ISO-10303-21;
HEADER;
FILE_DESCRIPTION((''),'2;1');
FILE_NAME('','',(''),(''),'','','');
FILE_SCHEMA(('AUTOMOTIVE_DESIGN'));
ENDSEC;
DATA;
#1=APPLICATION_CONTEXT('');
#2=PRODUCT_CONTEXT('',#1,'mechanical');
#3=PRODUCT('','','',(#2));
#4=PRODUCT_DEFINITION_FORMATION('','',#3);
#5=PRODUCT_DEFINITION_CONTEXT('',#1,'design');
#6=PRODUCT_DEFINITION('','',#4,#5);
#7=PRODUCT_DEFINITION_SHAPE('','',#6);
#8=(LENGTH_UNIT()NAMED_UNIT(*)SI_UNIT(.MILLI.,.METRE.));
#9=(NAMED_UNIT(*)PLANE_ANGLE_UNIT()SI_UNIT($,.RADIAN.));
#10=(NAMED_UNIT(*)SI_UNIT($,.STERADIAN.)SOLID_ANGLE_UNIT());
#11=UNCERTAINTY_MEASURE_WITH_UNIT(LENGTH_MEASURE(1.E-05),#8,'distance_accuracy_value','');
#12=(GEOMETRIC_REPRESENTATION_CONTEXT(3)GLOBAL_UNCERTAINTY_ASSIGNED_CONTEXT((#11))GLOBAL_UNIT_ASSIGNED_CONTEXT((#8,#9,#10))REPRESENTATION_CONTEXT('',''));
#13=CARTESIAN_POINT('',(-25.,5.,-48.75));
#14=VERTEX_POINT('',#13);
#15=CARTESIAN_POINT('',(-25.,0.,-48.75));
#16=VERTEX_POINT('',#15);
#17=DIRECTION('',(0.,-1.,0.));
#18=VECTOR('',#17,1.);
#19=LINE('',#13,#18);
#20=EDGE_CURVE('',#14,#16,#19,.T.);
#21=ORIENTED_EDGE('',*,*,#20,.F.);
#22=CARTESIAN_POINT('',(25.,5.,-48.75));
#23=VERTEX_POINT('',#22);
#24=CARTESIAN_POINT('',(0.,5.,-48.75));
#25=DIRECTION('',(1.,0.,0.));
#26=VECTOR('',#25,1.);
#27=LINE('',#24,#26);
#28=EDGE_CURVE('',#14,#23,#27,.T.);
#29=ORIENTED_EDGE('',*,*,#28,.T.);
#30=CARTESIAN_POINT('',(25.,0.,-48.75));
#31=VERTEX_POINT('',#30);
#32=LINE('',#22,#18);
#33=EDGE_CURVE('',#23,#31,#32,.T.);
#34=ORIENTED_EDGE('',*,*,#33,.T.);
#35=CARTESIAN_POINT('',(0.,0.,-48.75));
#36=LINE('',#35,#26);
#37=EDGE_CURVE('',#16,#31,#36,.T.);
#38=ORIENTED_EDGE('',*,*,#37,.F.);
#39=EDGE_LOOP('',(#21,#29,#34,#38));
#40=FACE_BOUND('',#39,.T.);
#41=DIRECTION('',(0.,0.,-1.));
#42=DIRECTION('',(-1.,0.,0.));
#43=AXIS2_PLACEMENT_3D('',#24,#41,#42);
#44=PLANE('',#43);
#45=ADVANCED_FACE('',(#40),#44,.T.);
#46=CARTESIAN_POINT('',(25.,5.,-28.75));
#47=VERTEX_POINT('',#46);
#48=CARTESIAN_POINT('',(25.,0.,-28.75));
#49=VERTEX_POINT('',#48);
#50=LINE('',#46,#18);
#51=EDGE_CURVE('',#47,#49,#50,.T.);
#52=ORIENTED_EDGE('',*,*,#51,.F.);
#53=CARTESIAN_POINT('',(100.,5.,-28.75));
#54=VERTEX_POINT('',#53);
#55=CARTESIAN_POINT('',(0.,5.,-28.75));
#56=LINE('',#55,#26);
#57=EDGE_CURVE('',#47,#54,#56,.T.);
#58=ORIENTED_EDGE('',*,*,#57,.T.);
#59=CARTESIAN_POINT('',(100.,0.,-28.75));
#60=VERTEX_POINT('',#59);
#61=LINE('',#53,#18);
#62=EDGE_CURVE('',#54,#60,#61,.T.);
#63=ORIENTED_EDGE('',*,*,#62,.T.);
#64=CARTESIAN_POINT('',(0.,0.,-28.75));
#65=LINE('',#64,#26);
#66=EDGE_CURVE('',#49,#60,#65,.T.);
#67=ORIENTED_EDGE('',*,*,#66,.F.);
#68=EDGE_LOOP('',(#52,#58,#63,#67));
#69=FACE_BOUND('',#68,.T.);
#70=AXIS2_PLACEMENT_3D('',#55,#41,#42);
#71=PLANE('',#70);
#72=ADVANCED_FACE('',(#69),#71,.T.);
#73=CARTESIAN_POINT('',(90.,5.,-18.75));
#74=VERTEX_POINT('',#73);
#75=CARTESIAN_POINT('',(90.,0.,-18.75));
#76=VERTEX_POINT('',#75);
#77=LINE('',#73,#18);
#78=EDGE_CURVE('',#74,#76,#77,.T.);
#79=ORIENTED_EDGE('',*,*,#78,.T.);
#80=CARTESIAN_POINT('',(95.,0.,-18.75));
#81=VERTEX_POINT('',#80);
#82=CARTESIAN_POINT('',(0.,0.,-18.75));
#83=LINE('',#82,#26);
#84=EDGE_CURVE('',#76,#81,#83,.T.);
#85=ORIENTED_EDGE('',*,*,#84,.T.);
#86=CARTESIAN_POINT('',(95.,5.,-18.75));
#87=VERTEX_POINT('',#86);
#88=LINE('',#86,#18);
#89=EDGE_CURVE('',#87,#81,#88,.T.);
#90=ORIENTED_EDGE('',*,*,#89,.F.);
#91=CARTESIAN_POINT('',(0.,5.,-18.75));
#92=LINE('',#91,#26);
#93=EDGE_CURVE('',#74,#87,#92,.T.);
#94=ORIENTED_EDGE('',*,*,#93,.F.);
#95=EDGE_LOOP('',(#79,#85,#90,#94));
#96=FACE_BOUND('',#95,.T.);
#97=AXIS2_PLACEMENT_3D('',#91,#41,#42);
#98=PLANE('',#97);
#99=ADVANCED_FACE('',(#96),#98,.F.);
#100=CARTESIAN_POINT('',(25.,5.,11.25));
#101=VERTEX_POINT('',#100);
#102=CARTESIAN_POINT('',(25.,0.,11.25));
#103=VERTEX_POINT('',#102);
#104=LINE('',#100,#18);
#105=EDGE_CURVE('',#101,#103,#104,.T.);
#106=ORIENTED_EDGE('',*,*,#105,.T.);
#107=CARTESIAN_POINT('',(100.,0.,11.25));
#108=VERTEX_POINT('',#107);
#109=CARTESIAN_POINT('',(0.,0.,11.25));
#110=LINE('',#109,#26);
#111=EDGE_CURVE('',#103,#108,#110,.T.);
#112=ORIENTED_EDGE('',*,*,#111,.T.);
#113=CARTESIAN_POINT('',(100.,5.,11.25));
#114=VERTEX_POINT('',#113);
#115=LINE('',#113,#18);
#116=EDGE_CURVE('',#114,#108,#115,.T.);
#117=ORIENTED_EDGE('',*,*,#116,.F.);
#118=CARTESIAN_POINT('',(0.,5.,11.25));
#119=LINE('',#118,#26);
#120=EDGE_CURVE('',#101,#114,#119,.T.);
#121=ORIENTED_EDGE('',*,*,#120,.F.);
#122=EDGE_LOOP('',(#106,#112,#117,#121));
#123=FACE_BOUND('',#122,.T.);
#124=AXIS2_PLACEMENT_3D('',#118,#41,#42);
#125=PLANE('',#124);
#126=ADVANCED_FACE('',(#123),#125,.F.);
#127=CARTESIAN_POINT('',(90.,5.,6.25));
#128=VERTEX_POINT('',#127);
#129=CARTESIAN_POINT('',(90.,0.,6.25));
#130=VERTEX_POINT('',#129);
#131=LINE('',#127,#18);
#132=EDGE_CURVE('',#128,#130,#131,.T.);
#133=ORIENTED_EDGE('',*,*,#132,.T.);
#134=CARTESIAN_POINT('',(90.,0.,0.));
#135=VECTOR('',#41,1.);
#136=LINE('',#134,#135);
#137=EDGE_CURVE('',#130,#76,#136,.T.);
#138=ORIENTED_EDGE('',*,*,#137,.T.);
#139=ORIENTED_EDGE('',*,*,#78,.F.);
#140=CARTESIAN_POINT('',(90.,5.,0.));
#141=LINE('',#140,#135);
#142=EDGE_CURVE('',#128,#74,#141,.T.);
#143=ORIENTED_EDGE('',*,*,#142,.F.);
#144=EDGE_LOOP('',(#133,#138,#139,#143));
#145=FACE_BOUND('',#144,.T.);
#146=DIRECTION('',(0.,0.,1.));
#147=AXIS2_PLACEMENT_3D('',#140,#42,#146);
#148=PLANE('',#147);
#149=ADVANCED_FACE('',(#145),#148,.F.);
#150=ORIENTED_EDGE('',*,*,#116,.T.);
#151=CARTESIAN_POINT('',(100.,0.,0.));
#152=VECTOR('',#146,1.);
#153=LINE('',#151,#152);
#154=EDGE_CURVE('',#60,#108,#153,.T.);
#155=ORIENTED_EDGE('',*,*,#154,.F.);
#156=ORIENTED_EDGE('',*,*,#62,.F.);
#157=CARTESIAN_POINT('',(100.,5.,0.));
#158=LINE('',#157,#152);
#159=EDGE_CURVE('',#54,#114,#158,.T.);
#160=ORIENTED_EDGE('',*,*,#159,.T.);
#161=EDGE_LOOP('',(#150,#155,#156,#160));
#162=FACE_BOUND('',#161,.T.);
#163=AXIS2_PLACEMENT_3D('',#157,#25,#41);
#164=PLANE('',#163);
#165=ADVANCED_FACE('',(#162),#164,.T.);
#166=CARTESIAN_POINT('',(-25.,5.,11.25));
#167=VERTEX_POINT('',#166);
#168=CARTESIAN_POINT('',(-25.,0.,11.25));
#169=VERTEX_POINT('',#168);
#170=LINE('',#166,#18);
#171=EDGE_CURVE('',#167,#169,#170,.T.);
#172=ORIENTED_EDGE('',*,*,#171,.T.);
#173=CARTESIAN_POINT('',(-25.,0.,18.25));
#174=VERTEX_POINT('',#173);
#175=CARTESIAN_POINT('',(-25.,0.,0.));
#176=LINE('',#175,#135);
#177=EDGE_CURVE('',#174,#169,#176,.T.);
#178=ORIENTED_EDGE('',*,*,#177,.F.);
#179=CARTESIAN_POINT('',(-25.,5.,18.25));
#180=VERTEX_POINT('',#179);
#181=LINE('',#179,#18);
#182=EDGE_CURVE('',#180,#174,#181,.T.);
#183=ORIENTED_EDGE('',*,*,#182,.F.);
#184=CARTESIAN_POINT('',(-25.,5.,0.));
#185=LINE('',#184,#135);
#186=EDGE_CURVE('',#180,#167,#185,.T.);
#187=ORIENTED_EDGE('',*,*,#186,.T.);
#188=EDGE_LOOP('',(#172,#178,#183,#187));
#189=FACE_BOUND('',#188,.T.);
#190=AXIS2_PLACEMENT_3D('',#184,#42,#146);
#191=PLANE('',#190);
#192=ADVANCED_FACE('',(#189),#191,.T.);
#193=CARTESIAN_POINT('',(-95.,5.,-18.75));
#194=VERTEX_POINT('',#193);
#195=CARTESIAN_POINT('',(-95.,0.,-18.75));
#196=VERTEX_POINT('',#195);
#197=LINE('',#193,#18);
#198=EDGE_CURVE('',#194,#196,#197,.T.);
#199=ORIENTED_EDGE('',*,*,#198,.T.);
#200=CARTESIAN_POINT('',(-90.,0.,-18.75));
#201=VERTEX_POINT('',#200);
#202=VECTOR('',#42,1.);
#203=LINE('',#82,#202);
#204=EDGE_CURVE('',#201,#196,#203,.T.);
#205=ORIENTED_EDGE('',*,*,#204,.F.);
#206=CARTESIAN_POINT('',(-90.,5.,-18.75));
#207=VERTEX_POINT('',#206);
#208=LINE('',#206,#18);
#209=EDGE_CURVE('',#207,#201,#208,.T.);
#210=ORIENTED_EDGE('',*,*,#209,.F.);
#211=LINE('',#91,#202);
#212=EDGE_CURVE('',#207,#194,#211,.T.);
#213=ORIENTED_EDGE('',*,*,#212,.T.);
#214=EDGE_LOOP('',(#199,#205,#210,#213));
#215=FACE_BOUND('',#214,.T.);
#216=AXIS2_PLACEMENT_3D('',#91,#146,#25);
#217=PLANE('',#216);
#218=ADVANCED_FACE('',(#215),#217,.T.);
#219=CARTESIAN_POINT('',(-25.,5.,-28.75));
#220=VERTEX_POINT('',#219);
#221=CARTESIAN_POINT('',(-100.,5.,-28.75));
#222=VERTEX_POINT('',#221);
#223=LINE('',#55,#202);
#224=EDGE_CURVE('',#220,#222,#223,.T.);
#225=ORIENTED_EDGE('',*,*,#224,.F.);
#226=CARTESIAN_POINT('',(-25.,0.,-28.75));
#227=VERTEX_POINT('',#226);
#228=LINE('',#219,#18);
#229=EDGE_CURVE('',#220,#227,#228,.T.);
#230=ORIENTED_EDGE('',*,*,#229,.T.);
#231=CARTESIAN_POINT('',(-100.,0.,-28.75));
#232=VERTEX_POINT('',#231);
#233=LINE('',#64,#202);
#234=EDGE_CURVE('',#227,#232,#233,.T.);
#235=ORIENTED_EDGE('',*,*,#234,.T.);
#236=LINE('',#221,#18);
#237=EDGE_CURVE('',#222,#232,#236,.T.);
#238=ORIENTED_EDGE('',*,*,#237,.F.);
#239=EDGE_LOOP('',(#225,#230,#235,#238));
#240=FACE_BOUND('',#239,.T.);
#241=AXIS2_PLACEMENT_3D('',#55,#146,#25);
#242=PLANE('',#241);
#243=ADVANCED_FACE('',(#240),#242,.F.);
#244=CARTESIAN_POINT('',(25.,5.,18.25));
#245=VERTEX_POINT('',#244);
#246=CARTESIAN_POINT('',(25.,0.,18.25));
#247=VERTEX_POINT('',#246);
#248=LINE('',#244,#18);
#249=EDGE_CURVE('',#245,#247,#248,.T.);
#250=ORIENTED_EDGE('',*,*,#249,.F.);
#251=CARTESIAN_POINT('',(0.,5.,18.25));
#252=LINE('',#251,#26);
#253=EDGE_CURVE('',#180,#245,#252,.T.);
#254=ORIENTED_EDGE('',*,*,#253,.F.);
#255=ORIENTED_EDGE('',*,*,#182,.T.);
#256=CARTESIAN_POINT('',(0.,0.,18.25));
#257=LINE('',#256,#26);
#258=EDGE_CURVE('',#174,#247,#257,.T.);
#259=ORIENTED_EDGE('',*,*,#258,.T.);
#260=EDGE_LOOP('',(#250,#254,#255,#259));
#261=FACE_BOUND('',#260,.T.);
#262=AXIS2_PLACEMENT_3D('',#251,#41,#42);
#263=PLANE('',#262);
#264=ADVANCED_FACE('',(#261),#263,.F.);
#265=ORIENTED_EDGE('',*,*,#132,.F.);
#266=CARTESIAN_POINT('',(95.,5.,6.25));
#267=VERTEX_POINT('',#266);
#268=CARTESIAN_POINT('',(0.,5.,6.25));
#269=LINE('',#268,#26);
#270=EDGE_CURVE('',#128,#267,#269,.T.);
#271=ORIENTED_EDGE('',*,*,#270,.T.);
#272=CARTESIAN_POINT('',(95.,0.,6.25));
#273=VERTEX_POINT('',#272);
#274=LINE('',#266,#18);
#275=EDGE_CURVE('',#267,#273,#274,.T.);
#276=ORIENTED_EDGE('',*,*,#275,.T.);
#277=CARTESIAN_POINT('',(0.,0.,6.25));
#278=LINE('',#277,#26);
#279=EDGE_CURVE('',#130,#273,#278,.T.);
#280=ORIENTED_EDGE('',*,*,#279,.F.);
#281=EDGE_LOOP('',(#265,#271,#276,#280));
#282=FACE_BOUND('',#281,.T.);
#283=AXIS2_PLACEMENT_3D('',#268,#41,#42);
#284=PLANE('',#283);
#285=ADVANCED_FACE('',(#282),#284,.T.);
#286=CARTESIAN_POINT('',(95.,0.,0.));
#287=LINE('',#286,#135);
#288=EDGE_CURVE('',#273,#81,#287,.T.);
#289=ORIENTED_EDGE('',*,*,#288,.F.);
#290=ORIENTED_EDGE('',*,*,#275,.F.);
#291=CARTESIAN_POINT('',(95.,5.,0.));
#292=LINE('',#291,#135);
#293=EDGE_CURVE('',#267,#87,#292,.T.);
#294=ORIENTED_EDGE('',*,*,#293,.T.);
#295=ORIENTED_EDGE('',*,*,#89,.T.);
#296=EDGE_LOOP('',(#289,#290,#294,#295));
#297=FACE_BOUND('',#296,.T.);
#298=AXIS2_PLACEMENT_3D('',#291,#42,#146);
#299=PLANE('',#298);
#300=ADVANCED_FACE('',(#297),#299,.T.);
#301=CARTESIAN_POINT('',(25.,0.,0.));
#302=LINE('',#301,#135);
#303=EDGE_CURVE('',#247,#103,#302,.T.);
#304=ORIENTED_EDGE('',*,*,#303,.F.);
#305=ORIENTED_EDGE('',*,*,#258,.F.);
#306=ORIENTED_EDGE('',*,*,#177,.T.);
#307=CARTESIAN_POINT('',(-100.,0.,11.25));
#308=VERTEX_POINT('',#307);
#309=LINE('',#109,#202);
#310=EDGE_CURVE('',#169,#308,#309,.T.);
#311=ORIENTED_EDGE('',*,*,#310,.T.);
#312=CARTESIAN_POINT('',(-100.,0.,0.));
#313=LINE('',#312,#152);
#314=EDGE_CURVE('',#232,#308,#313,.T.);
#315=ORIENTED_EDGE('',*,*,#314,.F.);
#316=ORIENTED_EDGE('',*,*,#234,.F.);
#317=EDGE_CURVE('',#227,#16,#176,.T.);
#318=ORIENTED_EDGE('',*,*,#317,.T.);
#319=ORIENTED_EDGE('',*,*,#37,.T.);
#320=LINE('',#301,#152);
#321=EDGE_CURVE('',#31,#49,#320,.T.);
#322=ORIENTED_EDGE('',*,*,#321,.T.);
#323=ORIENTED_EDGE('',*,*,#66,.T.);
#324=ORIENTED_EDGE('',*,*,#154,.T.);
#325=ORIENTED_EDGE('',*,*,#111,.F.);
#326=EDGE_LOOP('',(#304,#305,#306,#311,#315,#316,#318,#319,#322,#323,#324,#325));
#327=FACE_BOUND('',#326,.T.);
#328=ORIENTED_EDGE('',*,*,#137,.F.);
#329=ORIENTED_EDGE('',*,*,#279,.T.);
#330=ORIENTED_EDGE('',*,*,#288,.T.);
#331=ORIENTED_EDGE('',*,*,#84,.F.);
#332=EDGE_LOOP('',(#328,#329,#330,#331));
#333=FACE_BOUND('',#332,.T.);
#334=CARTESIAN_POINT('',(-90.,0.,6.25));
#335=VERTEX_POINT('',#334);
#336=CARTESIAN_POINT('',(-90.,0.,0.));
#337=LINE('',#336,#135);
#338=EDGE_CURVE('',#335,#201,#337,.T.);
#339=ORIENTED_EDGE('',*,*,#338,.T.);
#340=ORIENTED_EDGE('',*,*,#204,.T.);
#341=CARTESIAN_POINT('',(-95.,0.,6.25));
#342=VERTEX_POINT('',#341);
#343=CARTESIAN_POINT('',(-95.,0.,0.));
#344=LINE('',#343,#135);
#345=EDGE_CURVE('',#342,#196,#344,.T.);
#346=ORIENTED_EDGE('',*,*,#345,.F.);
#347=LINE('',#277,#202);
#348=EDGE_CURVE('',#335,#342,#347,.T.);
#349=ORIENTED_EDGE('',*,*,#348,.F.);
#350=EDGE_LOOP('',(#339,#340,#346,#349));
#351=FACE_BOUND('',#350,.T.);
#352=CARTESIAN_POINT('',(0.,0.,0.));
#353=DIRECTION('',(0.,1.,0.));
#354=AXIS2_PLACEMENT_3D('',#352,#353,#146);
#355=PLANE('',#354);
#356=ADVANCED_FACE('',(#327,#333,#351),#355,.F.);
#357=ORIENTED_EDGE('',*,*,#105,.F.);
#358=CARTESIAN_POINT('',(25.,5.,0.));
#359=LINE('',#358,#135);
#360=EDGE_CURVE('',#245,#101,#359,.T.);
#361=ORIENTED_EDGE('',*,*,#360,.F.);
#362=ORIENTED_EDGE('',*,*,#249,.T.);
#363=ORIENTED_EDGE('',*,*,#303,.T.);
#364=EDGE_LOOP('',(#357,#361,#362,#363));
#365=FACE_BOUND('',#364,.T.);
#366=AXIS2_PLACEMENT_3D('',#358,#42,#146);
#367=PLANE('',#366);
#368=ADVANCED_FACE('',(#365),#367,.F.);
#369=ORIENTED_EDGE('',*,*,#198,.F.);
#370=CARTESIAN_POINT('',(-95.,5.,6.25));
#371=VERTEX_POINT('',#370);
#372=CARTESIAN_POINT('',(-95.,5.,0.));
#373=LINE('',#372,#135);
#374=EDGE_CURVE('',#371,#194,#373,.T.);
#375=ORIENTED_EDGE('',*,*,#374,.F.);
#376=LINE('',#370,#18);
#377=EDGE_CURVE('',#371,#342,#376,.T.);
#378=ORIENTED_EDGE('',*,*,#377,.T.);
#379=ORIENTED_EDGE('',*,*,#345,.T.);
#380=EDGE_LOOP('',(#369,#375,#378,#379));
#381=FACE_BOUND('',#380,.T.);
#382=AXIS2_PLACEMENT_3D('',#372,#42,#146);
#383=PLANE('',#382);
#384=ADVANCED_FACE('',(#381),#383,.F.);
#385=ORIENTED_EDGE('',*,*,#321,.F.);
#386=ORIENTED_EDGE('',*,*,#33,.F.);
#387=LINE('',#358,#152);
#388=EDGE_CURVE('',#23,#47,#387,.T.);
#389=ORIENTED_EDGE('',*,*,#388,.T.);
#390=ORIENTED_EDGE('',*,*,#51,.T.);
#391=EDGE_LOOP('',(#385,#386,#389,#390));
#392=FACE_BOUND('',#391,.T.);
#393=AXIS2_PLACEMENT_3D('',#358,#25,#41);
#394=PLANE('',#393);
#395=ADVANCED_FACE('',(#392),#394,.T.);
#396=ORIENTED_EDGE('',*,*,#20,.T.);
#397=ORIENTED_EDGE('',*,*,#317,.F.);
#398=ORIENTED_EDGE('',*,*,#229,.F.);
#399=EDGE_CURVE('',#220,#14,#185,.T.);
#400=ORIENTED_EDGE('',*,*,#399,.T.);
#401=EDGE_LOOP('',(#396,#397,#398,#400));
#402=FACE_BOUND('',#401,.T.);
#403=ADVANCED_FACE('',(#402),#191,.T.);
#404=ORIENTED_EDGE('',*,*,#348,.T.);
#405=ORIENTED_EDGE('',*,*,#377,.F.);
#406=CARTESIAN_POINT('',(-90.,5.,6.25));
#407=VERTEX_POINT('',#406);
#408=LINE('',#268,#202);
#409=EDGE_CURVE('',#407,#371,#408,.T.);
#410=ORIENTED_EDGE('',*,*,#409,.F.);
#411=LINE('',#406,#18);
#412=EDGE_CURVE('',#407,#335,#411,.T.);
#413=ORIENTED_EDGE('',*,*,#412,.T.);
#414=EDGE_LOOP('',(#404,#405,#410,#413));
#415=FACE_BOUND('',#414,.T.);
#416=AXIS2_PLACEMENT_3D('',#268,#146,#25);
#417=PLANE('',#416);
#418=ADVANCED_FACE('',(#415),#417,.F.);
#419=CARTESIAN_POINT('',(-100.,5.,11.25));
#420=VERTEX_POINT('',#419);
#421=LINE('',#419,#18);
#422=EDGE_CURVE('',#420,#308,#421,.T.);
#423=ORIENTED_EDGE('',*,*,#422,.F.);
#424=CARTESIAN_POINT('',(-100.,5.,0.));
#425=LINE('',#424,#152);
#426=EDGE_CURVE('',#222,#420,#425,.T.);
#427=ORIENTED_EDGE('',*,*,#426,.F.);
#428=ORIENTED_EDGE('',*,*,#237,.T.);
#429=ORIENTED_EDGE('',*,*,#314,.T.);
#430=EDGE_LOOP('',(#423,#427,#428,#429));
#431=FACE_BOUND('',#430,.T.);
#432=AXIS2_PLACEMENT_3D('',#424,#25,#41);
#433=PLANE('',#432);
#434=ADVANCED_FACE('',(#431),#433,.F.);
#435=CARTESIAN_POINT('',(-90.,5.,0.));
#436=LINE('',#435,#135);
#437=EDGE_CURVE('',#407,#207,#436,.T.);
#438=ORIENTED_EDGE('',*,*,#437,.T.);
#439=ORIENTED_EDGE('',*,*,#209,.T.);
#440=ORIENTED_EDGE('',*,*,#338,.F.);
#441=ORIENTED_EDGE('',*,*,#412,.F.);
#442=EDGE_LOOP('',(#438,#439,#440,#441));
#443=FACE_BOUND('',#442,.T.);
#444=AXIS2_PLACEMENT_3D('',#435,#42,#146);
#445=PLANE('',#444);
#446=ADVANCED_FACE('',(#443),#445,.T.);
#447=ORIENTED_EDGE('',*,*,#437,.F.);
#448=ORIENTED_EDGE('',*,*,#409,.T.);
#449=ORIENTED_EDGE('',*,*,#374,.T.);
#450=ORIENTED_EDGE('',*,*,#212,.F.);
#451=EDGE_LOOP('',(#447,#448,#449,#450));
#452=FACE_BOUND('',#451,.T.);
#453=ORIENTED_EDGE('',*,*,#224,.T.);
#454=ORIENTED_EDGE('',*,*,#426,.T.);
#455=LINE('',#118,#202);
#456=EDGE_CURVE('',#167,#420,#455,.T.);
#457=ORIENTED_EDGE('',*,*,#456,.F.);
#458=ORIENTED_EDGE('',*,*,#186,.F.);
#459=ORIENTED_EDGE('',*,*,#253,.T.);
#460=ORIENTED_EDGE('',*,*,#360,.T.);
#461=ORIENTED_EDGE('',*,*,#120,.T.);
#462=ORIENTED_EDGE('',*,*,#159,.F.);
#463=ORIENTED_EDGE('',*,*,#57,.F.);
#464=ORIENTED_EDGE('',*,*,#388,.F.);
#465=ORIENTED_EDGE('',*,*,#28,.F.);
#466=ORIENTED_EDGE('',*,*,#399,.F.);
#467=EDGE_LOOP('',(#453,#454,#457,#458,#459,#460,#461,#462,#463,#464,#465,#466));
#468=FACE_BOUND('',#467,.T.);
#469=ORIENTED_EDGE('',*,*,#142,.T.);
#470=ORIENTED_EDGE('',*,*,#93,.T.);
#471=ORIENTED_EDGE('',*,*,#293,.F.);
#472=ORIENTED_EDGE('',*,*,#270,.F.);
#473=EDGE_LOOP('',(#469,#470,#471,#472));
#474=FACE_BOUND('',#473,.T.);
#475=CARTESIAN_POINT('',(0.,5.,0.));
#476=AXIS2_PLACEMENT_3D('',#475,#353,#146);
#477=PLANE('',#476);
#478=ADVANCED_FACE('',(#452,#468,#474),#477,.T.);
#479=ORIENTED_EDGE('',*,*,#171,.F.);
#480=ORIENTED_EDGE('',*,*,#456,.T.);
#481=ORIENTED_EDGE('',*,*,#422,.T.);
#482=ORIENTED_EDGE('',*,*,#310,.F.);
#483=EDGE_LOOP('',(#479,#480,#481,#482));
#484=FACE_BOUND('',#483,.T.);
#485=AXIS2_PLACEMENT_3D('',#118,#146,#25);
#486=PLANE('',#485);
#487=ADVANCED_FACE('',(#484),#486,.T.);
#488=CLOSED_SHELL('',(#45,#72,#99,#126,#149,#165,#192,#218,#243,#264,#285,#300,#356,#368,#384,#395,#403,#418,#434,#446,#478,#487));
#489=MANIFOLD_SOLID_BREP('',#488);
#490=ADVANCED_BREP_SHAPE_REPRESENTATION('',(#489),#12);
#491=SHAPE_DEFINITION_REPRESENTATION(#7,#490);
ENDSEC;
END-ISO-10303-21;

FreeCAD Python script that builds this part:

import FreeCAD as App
import Part
import Sketcher

V = App.Vector


def add_polygon(sketch, points):
    """Adds a closed chain of lines whose ends are joined by coincident constraints."""
    first, n = sketch.GeometryCount, len(points)
    for a, b in zip(points, points[1:] + points[:1]):
        sketch.addGeometry(Part.LineSegment(App.Vector(*a, 0), App.Vector(*b, 0)), False)
    for i in range(n):
        sketch.addConstraint(Sketcher.Constraint("Coincident", first + i, 2, first + (i + 1) % n, 1))

doc = App.newDocument("Part")
body = doc.addObject("PartDesign::Body", "Body")

# Sketch on XZ plane
sketch1 = body.newObject("Sketcher::SketchObject", "Sketch")
sketch1.AttachmentSupport = (doc.getObject("XZ_Plane"), [""])
sketch1.MapMode = "FlatFace"
add_polygon(sketch1, [(-25, -29), (-100, -29), (-100, 11), (-25, 11), (-25, 18), (25, 18), (25, 11), (100, 11), (100, -29), (25, -29), (25, -49), (-25, -49)])  # lines 0-11
add_polygon(sketch1, [(-90, 6), (-95, 6), (-95, -19), (-90, -19)])  # lines 12-15
add_polygon(sketch1, [(95, 6), (90, 6), (90, -19), (95, -19)])  # lines 16-19
sketch1.addConstraint([
    Sketcher.Constraint("Horizontal", 0),
    Sketcher.Constraint("Vertical", 1),
    Sketcher.Constraint("Horizontal", 2),
    Sketcher.Constraint("Vertical", 3),
    Sketcher.Constraint("Horizontal", 4),
    Sketcher.Constraint("Vertical", 5),
    Sketcher.Constraint("Horizontal", 6),
    Sketcher.Constraint("Vertical", 7),
    Sketcher.Constraint("Horizontal", 8),
    Sketcher.Constraint("Vertical", 9),
    Sketcher.Constraint("Horizontal", 10),
    Sketcher.Constraint("Vertical", 11),
    Sketcher.Constraint("Horizontal", 12),
    Sketcher.Constraint("Vertical", 13),
    Sketcher.Constraint("Horizontal", 14),
    Sketcher.Constraint("Vertical", 15),
    Sketcher.Constraint("Horizontal", 16),
    Sketcher.Constraint("Vertical", 17),
    Sketcher.Constraint("Horizontal", 18),
    Sketcher.Constraint("Vertical", 19),
    Sketcher.Constraint("Symmetric", 2, 2, 5, 2, -2),
    Sketcher.Constraint("Symmetric", 0, 2, 7, 2, -2),
    Sketcher.Constraint("Symmetric", 15, 2, 16, 2, -2),
    Sketcher.Constraint("Symmetric", 13, 2, 18, 2, -2),
    Sketcher.Constraint("Vertical", 5, 2, 8, 2),
    Sketcher.Constraint("Vertical", 3, 2, 10, 2),
    Sketcher.Constraint("DistanceX", 0, 2, 0, 1, 75.0),
    Sketcher.Constraint("DistanceX", 4, 1, 4, 2, 50.0),
    Sketcher.Constraint("DistanceX", 12, 2, 12, 1, 5.0),
    Sketcher.Constraint("DistanceY", 1, 1, 1, 2, 40.0),
    Sketcher.Constraint("DistanceY", 3, 1, 3, 2, 7.0),
    Sketcher.Constraint("DistanceY", 9, 2, 9, 1, 20.0),
    Sketcher.Constraint("DistanceY", 13, 2, 13, 1, 25.0),
    Sketcher.Constraint("DistanceX", 12, 2, -1, 1, 95.0),
    Sketcher.Constraint("DistanceY", 12, 2, 1, 2, 5.0),
    Sketcher.Constraint("DistanceY", 0, 2, -1, 1, 28.75),
])
pad1 = body.newObject("PartDesign::Pad", "Pad")
pad1.Profile = sketch1
pad1.Length = 5
pad1.Reversed = True

doc.recompute()
